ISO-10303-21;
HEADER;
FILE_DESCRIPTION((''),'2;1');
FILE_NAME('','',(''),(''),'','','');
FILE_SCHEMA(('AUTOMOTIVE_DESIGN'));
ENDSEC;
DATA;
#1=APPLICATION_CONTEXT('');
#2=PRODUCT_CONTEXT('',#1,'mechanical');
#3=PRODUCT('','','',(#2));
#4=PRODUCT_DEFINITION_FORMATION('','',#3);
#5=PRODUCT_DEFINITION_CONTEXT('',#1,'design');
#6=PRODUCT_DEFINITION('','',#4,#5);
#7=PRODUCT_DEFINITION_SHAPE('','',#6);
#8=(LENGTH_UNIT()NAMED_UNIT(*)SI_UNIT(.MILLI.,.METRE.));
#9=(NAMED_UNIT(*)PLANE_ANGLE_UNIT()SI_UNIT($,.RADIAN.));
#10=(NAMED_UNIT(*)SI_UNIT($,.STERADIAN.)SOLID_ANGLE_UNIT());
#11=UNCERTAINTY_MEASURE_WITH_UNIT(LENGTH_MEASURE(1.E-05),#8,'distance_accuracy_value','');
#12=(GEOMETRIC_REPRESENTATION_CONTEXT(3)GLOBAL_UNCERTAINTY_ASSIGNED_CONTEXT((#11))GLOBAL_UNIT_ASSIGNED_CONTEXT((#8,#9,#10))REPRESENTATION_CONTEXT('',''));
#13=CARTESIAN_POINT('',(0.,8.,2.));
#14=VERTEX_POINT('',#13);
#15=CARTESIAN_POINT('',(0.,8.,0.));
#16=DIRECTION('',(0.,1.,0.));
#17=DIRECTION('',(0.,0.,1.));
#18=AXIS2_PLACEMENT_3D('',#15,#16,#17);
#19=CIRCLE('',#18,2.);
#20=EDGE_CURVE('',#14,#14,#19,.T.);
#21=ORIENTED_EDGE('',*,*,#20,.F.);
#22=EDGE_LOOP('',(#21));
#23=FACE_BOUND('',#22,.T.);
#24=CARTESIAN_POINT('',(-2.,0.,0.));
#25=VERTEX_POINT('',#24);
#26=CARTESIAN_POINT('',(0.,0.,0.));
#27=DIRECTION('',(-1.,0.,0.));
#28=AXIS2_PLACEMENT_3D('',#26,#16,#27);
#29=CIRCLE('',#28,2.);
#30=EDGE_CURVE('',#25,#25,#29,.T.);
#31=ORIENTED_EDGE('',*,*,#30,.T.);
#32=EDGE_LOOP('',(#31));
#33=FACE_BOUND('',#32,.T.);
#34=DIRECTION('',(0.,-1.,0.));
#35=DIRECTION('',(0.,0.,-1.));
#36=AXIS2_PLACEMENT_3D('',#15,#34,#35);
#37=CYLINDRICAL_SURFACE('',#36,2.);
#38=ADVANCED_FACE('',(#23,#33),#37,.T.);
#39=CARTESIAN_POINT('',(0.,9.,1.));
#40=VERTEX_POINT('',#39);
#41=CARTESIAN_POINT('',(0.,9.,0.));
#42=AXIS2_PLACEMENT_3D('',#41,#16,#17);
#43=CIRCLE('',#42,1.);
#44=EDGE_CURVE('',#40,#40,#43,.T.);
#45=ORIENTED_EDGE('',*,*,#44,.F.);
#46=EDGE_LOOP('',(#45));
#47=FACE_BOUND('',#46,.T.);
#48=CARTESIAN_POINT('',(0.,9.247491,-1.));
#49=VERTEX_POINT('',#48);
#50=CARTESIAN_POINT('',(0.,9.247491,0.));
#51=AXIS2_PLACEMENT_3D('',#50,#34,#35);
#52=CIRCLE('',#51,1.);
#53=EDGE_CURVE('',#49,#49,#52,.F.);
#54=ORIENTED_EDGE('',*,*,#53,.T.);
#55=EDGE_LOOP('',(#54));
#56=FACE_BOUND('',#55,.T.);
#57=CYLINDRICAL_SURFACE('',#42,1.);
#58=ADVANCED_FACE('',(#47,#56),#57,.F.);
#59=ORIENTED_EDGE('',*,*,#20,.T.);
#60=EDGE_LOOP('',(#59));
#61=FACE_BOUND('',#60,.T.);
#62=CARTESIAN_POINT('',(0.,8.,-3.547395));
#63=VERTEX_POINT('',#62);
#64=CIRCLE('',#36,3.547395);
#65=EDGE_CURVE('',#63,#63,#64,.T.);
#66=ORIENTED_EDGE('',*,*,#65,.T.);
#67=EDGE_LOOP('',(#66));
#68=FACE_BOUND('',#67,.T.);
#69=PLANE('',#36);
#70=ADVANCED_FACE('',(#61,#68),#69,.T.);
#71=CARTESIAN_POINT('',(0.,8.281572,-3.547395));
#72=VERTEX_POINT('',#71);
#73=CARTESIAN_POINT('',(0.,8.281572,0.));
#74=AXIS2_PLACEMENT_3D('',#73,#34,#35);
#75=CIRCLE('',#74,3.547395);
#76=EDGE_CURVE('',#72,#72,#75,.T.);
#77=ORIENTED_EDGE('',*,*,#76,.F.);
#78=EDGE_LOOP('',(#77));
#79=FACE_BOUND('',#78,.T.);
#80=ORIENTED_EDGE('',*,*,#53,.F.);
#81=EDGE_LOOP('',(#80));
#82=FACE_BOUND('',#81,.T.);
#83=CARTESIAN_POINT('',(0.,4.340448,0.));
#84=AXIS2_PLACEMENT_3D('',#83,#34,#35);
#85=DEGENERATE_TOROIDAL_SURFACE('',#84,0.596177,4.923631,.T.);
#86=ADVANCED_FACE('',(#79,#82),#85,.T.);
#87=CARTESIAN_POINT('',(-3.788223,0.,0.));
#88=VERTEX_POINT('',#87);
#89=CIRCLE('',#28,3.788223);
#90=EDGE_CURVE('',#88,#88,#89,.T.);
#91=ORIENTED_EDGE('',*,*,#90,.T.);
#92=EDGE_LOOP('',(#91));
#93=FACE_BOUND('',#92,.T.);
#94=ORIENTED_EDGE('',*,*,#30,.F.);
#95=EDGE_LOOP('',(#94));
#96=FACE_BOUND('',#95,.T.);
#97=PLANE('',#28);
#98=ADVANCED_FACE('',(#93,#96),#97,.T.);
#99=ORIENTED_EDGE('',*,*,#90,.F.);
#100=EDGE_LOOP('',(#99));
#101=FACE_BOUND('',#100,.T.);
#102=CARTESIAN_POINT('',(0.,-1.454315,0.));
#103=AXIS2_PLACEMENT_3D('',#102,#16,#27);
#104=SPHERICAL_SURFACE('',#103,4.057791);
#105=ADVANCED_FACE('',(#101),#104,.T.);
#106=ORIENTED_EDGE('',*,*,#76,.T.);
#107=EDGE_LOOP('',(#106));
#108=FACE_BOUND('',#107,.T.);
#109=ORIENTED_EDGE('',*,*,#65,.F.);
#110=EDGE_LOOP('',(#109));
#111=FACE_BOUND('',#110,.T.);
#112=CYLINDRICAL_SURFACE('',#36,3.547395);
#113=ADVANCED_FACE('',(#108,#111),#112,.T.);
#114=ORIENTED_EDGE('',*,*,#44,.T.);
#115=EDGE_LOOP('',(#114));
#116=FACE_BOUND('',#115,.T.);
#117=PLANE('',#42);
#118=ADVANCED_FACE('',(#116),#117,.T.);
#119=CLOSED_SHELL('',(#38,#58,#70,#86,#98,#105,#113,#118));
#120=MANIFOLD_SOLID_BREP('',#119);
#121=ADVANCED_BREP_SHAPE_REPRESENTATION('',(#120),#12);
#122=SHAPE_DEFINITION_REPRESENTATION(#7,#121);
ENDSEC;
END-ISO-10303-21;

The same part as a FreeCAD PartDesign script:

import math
import FreeCAD as App
import Part
import Sketcher
from FreeCAD import Vector
Q = App.Units.Quantity

doc = App.newDocument("Part")
body = doc.addObject("PartDesign::Body", "Body")

# Sketch on XZ plane
sketch1 = body.newObject("Sketcher::SketchObject", "Sketch")
sketch1.AttachmentSupport = (doc.getObject("XZ_Plane"), [""])
sketch1.MapMode = "FlatFace"
sketch1.addGeometry(Part.Circle(Vector(0, 0, 0), Vector(0, 0, 1), 2), False)
sketch1.addConstraint([
    Sketcher.Constraint("Coincident", 0, 3, -1, 1),
    Sketcher.Constraint("Diameter", 0, Q("4 mm")),
])
pad1 = body.newObject("PartDesign::Pad", "Pad")
pad1.Profile = sketch1
pad1.Length = 8
pad1.Reversed = True

# Sketch on XY plane
sketch2 = body.newObject("Sketcher::SketchObject", "Sketch001")
sketch2.AttachmentSupport = (doc.getObject("XY_Plane"), [""])
sketch2.MapMode = "FlatFace"
sketch2.addGeometry([
    Part.LineSegment(Vector(0, 0, 0), Vector(-3.8, 0, 0)),
    Part.ArcOfCircle(Part.Circle(Vector(0, -1.5, 0), Vector(0, 0, 1), 4.1), math.radians(159), math.radians(270)),
    Part.LineSegment(Vector(0, -5.5, 0), Vector(0, 0, 0)),
], False)
sketch2.addConstraint([
    Sketcher.Constraint("Coincident", 0, 2, 1, 1),
    Sketcher.Constraint("Coincident", 1, 2, 2, 1),
    Sketcher.Constraint("Coincident", 2, 2, 0, 1),
    Sketcher.Constraint("Horizontal", 0),
    Sketcher.Constraint("Vertical", 2),
    Sketcher.Constraint("Coincident", 2, 2, -1, 1),
    Sketcher.Constraint("PointOnObject", 1, 3, -2),
    Sketcher.Constraint("Radius", 1, Q("4.057791 mm")),
    Sketcher.Constraint("DistanceX", 0, 2, 0, 1, Q("3.788223 mm")),
])
revolution = body.newObject("PartDesign::Revolution", "Revolution")
revolution.Profile = sketch2
revolution.ReferenceAxis = (sketch2, ["V_Axis"])
revolution.Angle = 360

# Sketch on XY plane
sketch3 = body.newObject("Sketcher::SketchObject", "Sketch002")
sketch3.AttachmentSupport = (doc.getObject("XY_Plane"), [""])
sketch3.MapMode = "FlatFace"
sketch3.addGeometry([
    Part.ArcOfCircle(Part.Circle(Vector(-0.6, 4.34, 0), Vector(0, 0, 1), 4.92), math.radians(83), math.radians(127)),
    Part.LineSegment(Vector(-3.55, 8.28, 0), Vector(-3.55, 8, 0)),
    Part.LineSegment(Vector(-3.55, 8, 0), Vector(0, 8, 0)),
    Part.LineSegment(Vector(0, 8, 0), Vector(0, 9.23, 0)),
], False)
sketch3.addConstraint([
    Sketcher.Constraint("Coincident", 0, 2, 1, 1),
    Sketcher.Constraint("Coincident", 1, 2, 2, 1),
    Sketcher.Constraint("Coincident", 2, 2, 3, 1),
    Sketcher.Constraint("Coincident", 3, 2, 0, 1),
    Sketcher.Constraint("Vertical", 1),
    Sketcher.Constraint("Horizontal", 2),
    Sketcher.Constraint("Vertical", 3),
    Sketcher.Constraint("PointOnObject", 2, 2, -2),
    Sketcher.Constraint("DistanceY", -1, 1, 1, 2, Q("8 mm")),
    Sketcher.Constraint("Radius", 0, Q("4.923631 mm")),
    Sketcher.Constraint("DistanceY", 1, 2, 1, 1, Q("0.281572 mm")),
    Sketcher.Constraint("DistanceY", 3, 1, 3, 2, Q("1.227852 mm")),
    Sketcher.Constraint("DistanceX", 2, 1, 2, 2, Q("3.547395 mm")),
])
revolution2 = body.newObject("PartDesign::Revolution", "Revolution001")
revolution2.Profile = sketch3
revolution2.ReferenceAxis = (sketch3, ["V_Axis"])
revolution2.Angle = 360

# Sketch on XZ plane
sketch4 = body.newObject("Sketcher::SketchObject", "Sketch003")
sketch4.AttachmentSupport = (doc.getObject("XZ_Plane"), [""])
sketch4.MapMode = "FlatFace"
sketch4.AttachmentOffset = App.Placement(Vector(0, 0, -11), App.Rotation())
sketch4.addGeometry(Part.Circle(Vector(0, 0, 0), Vector(0, 0, 1), 1), False)
sketch4.addConstraint([
    Sketcher.Constraint("Coincident", 0, 3, -1, 1),
    Sketcher.Constraint("Diameter", 0, Q("2 mm")),
])
pocket1 = body.newObject("PartDesign::Pocket", "Pocket")
pocket1.Profile = sketch4
pocket1.Length = 2
pocket1.Reversed = True

doc.recompute()
